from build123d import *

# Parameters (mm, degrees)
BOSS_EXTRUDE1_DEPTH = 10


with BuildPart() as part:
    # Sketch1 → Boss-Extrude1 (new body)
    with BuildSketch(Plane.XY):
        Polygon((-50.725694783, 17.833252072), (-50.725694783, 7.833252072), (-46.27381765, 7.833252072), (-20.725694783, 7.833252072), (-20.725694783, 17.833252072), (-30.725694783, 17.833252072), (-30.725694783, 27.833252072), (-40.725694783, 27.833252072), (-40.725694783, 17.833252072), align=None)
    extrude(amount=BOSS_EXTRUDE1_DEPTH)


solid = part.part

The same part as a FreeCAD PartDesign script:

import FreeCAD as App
import Part
import Sketcher


def add_polygon(sketch, points):
    """Adds a closed chain of lines whose ends are joined by coincident constraints."""
    first, n = sketch.GeometryCount, len(points)
    for a, b in zip(points, points[1:] + points[:1]):
        sketch.addGeometry(Part.LineSegment(App.Vector(*a, 0), App.Vector(*b, 0)), False)
    for i in range(n):
        sketch.addConstraint(Sketcher.Constraint("Coincident", first + i, 2, first + (i + 1) % n, 1))

doc = App.newDocument("Part")
body = doc.addObject("PartDesign::Body", "Body")

sketch1 = body.newObject("Sketcher::SketchObject", "Sketch")
sketch1.AttachmentSupport = (doc.getObject("XY_Plane"), [""])
sketch1.MapMode = "FlatFace"
add_polygon(sketch1, [(-51, 18), (-51, 8), (-21, 8), (-21, 18), (-31, 18), (-31, 28), (-41, 28), (-41, 18)])
sketch1.addConstraint([
    Sketcher.Constraint("Vertical", 0),
    Sketcher.Constraint("Horizontal", 1),
    Sketcher.Constraint("Vertical", 2),
    Sketcher.Constraint("Horizontal", 3),
    Sketcher.Constraint("Vertical", 4),
    Sketcher.Constraint("Horizontal", 5),
    Sketcher.Constraint("Vertical", 6),
    Sketcher.Constraint("Horizontal", 7),
    Sketcher.Constraint("Horizontal", 3, 2, 6, 2),
    Sketcher.Constraint("Equal", 3, 5),
    Sketcher.Constraint("Equal", 5, 7),
    Sketcher.Constraint("Equal", 7, 0),
    Sketcher.Constraint("Equal", 2, 4),
    Sketcher.Constraint("DistanceX", 1, 1, 1, 2, 30.0),
    Sketcher.Constraint("DistanceX", 0, 2, -1, 1, 50.725695),
    Sketcher.Constraint("DistanceY", -1, 1, 0, 2, 7.833252),
])
pad1 = body.newObject("PartDesign::Pad", "Pad")
pad1.Profile = sketch1
pad1.Length = 10

doc.recompute()
